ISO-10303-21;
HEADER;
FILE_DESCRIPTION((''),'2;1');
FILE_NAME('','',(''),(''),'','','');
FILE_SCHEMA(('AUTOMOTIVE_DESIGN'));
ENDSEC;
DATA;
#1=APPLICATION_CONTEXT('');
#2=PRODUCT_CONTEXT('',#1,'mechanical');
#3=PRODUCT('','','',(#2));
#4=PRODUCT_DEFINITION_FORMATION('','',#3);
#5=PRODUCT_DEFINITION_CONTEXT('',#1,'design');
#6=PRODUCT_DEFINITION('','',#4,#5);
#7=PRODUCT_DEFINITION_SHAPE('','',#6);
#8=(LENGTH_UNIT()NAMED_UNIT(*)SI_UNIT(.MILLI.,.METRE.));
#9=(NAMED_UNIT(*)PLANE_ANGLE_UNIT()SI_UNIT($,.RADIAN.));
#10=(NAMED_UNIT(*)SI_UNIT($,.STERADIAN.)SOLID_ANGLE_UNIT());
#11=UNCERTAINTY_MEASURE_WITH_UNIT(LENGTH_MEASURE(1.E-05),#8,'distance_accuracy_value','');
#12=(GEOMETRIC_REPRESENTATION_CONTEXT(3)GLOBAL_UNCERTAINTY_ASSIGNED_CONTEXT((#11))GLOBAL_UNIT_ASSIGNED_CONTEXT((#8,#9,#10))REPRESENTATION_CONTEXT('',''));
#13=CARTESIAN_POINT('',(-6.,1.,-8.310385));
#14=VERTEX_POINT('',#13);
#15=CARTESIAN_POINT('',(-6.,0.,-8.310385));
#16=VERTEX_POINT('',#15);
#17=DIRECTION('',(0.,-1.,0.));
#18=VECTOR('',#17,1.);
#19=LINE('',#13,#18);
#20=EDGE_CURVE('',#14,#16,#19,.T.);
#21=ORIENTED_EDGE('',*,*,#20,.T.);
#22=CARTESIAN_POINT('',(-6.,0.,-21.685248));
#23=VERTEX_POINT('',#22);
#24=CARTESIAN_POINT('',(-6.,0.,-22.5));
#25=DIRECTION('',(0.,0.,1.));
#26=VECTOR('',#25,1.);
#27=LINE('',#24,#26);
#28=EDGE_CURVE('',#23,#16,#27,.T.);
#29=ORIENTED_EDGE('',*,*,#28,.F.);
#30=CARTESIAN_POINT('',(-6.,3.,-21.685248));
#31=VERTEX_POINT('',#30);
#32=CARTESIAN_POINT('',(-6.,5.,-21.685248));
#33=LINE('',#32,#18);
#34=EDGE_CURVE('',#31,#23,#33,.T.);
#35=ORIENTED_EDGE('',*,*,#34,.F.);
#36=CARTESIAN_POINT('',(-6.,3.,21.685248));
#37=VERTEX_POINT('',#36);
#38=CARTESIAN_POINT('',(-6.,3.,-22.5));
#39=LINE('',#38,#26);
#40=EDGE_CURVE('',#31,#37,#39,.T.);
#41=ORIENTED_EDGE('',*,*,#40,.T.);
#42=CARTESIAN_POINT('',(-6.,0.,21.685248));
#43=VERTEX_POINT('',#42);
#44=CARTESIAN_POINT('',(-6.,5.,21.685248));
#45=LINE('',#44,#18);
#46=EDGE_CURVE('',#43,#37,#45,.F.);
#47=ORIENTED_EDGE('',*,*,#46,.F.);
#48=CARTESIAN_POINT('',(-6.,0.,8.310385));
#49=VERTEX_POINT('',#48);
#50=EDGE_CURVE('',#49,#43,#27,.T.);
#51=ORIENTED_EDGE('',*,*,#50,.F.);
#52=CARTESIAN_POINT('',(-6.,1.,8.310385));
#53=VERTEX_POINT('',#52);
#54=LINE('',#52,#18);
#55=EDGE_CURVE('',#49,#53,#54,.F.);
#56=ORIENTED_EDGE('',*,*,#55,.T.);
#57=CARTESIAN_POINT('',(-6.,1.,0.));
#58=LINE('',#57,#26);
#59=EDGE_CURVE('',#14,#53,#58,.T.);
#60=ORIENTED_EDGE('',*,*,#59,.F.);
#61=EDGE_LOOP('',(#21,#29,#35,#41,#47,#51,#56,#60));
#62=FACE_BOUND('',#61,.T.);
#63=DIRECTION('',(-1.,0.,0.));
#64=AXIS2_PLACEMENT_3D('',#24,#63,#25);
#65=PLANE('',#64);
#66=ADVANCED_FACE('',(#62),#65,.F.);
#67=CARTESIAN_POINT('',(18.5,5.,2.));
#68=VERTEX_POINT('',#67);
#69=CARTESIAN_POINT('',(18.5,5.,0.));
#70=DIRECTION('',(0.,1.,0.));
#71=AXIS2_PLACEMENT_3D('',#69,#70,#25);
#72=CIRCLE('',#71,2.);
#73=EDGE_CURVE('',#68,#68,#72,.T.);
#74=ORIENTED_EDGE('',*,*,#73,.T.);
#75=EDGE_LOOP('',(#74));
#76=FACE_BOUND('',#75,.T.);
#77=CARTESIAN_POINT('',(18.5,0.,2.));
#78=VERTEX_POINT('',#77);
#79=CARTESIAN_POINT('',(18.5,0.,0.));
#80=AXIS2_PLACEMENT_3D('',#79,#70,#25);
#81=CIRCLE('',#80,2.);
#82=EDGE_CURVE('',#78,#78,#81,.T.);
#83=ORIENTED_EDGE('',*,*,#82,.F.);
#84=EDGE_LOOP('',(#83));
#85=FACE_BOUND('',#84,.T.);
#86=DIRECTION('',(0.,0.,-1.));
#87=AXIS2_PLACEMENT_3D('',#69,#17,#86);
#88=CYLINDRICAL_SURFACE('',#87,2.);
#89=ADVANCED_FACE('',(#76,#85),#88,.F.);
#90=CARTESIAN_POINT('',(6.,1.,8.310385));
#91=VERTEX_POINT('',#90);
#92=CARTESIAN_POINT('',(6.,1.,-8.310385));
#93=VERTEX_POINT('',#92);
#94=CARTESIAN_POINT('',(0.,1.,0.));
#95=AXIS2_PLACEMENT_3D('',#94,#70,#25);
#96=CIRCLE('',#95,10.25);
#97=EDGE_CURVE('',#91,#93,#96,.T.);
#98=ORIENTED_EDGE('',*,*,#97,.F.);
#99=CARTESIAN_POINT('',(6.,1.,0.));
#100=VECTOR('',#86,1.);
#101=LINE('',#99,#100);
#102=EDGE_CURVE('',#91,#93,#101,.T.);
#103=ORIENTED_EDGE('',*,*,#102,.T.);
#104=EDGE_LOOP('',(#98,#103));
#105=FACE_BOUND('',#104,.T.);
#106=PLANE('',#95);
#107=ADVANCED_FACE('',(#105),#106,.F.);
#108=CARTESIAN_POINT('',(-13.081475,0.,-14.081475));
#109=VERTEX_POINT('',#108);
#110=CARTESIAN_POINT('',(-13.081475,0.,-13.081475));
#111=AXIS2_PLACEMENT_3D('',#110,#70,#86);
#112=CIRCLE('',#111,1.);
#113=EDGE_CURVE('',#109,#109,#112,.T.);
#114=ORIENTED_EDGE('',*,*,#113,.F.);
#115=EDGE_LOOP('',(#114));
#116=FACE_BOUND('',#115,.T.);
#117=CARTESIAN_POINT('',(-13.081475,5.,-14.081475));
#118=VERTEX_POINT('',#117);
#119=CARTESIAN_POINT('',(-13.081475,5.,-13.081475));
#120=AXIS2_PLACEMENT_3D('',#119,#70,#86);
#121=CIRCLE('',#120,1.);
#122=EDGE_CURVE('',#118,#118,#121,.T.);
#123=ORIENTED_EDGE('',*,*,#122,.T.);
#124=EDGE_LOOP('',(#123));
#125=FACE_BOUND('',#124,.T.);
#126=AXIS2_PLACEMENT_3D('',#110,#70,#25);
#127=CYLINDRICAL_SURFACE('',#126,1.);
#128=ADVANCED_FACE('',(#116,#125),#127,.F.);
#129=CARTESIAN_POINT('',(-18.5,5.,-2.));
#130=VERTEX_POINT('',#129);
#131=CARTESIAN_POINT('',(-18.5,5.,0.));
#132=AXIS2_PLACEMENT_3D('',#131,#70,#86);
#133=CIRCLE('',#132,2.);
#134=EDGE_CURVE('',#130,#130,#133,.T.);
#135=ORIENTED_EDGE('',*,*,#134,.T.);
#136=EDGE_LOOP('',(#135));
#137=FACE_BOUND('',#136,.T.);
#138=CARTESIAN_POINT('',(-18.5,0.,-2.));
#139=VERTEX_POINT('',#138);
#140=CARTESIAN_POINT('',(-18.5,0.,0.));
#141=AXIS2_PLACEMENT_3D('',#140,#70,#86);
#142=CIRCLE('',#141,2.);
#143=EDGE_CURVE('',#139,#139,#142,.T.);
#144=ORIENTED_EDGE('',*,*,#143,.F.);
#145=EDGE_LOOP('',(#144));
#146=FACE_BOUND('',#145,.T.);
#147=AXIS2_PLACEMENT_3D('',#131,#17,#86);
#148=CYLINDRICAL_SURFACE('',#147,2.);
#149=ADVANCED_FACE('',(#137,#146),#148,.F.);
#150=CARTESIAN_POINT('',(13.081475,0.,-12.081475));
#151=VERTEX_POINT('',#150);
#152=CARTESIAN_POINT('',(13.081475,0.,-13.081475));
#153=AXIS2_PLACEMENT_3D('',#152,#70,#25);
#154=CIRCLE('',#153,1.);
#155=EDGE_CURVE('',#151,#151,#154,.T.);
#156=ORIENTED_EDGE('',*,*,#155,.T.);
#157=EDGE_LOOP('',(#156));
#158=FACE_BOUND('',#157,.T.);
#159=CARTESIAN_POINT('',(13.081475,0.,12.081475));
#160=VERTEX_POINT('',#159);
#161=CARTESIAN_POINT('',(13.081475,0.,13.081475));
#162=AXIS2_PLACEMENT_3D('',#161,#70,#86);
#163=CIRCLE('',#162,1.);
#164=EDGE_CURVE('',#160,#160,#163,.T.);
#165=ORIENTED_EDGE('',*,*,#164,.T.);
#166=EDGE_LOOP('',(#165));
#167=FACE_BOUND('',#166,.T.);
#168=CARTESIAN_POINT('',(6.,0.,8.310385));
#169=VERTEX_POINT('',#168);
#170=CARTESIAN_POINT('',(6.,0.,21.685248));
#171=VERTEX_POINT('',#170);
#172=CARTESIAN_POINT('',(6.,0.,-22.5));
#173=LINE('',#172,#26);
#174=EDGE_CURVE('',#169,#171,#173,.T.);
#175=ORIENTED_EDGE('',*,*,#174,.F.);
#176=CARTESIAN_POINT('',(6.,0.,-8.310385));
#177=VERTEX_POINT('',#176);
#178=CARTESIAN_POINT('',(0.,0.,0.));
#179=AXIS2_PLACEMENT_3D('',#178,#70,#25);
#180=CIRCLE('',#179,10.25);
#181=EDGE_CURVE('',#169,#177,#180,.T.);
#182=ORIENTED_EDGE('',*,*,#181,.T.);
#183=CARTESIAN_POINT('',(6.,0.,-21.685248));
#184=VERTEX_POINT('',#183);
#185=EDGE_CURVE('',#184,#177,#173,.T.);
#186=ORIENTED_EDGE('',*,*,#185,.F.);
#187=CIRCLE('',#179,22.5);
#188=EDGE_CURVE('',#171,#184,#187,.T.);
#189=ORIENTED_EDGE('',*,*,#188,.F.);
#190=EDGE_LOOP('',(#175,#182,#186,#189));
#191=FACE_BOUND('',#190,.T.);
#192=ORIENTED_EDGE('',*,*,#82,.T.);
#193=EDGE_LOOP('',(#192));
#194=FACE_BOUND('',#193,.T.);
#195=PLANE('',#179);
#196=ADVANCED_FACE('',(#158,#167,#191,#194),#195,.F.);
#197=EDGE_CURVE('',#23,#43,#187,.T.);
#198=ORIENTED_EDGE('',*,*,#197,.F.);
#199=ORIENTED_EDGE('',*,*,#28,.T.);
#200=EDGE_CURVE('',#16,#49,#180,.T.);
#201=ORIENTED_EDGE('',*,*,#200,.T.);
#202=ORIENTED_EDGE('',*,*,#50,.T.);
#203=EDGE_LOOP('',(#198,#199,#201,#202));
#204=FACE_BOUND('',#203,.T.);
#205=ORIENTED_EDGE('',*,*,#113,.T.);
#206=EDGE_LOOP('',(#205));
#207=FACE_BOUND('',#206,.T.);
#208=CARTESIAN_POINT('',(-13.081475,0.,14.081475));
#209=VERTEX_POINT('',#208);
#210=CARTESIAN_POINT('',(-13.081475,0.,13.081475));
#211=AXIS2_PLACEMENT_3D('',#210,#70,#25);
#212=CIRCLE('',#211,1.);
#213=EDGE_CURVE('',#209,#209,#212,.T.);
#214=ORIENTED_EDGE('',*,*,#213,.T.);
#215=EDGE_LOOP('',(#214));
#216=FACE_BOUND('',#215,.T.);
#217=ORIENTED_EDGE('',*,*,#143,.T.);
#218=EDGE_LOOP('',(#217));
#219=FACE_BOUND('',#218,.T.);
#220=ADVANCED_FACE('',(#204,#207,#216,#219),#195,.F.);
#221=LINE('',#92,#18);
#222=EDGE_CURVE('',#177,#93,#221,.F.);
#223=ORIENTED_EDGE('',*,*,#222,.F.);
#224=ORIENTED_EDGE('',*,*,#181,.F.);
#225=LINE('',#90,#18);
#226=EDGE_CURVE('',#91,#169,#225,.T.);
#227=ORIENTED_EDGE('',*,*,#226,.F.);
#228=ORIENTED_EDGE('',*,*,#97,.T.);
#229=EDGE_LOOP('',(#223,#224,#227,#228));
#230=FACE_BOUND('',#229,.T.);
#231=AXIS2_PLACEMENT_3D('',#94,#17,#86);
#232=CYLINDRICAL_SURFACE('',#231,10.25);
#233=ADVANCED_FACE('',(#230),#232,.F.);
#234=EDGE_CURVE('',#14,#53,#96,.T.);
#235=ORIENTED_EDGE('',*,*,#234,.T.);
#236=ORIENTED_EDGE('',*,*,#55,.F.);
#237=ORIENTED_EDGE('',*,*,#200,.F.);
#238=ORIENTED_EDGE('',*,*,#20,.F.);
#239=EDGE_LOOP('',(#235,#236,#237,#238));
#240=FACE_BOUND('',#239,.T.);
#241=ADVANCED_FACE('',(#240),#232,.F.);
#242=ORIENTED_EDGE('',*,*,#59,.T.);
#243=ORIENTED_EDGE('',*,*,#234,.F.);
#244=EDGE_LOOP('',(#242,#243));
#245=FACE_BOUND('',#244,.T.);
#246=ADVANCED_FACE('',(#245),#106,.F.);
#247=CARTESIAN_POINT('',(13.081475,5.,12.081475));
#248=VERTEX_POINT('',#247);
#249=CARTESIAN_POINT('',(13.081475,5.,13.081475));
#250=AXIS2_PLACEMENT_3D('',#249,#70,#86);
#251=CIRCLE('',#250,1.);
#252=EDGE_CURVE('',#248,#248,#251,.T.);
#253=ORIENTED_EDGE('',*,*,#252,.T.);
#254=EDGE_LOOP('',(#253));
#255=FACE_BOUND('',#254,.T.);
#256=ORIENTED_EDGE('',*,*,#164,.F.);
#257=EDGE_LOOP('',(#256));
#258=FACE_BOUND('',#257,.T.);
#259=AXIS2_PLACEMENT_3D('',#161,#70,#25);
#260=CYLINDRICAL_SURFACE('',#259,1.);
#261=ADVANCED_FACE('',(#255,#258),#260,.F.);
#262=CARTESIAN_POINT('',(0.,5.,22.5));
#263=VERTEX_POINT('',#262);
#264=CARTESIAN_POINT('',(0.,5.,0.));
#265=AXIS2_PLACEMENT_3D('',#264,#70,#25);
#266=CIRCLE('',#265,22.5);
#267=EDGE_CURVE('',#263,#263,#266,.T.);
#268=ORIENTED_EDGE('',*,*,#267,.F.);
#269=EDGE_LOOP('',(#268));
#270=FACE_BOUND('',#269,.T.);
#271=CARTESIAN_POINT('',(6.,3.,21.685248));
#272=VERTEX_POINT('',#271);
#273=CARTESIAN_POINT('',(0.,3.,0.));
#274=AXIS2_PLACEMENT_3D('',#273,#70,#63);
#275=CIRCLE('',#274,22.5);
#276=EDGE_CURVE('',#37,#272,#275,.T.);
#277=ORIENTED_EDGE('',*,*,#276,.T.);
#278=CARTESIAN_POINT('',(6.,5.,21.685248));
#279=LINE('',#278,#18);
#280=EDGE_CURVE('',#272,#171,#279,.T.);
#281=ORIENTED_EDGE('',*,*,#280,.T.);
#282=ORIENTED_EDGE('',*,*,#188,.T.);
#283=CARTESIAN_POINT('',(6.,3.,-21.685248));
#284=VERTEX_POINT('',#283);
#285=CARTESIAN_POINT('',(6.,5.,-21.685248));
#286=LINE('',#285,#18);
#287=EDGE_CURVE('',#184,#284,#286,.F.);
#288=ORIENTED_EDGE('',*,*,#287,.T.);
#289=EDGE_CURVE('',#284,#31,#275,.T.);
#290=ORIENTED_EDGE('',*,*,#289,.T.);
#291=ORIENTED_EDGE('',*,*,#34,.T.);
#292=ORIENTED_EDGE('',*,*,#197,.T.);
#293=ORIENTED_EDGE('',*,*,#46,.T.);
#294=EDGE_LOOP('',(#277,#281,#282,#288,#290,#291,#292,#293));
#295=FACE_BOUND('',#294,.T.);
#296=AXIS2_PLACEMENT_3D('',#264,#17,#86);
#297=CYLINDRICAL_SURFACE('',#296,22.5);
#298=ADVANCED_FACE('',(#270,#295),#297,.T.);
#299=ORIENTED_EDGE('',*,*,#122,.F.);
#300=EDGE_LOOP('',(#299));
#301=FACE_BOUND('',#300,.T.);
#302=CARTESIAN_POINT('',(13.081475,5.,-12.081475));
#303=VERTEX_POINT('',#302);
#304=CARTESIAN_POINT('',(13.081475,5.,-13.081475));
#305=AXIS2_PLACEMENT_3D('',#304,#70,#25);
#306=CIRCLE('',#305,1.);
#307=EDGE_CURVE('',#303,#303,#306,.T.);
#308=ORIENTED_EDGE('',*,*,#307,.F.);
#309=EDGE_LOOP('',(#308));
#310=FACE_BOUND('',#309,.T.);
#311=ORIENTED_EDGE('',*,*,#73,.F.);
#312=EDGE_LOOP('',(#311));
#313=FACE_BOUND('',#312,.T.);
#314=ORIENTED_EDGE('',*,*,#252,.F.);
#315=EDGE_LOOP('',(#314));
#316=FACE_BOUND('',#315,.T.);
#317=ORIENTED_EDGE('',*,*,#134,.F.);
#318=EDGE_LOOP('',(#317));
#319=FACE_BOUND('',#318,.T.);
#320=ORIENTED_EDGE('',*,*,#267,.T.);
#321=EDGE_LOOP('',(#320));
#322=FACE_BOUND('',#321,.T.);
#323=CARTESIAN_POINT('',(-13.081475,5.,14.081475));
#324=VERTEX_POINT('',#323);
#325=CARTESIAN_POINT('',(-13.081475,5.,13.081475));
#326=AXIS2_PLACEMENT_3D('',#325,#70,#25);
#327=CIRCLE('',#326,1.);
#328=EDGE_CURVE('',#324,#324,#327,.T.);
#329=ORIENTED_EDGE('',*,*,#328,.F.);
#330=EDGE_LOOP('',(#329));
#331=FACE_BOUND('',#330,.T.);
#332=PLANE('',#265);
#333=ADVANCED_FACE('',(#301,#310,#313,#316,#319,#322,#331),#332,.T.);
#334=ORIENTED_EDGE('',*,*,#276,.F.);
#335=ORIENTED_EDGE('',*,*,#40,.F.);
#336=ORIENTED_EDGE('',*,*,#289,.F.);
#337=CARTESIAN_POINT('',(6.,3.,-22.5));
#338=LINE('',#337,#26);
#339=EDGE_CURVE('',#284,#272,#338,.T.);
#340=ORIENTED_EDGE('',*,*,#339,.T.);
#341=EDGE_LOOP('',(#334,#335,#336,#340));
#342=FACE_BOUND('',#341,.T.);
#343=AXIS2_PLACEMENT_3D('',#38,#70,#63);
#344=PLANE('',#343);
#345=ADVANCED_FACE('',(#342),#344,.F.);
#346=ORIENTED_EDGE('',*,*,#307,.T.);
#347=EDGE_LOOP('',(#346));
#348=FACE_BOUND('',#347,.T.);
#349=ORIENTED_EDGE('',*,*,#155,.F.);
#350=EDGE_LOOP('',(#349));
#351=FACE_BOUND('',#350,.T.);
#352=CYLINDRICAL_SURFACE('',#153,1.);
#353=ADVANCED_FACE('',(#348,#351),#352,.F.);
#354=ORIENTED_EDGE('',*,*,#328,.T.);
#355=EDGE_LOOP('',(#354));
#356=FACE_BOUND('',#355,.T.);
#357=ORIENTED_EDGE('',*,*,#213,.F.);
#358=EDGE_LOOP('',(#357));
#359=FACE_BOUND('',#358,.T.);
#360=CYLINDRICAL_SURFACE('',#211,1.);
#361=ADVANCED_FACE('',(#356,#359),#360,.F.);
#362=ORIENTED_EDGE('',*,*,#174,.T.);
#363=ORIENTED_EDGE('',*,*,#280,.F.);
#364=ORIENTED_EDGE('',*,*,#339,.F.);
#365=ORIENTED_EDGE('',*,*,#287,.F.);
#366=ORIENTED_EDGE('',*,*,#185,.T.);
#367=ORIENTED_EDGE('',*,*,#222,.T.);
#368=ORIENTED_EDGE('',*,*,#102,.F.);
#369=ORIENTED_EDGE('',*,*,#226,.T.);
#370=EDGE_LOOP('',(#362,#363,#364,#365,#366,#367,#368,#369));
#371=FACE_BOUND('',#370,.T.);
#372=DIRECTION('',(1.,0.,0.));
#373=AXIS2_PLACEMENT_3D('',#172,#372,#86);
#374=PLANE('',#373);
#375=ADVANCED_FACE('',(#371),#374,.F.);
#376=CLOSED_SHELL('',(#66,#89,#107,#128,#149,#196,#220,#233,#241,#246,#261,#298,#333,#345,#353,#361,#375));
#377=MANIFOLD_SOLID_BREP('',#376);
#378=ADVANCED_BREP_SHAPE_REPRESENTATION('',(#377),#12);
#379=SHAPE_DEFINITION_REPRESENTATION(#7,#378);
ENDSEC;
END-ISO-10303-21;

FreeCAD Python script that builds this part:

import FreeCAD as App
import Part
import Sketcher
Q = App.Units.Quantity


def add_polygon(sketch, points):
    """Adds a closed chain of lines whose ends are joined by coincident constraints."""
    first, n = sketch.GeometryCount, len(points)
    for a, b in zip(points, points[1:] + points[:1]):
        sketch.addGeometry(Part.LineSegment(App.Vector(*a, 0), App.Vector(*b, 0)), False)
    for i in range(n):
        sketch.addConstraint(Sketcher.Constraint("Coincident", first + i, 2, first + (i + 1) % n, 1))

doc = App.newDocument("Part")
body = doc.addObject("PartDesign::Body", "Body")

sketch1 = body.newObject("Sketcher::SketchObject", "Sketch")
sketch1.AttachmentSupport = (doc.getObject("XZ_Plane"), [""])
sketch1.MapMode = "FlatFace"
sketch1.addGeometry(Part.Circle(App.Vector(0, 0, 0), App.Vector(0, 0, 1), 22.5), False)
sketch1.addGeometry(Part.Circle(App.Vector(-18.5, 0, 0), App.Vector(0, 0, 1), 2), False)
sketch1.addGeometry(Part.Circle(App.Vector(18.5, 0, 0), App.Vector(0, 0, 1), 2), False)
sketch1.addConstraint(Sketcher.Constraint("Coincident", 0, 3, -1, 1))
sketch1.addConstraint(Sketcher.Constraint("Equal", 1, 2))
sketch1.addConstraint(Sketcher.Constraint("Symmetric", 1, 3, 2, 3, -1, 1))
sketch1.addConstraint(Sketcher.Constraint("PointOnObject", 1, 3, -1))
sketch1.addConstraint(Sketcher.Constraint("Diameter", 0, Q("45 mm")))
sketch1.addConstraint(Sketcher.Constraint("Diameter", 1, Q("4 mm")))
sketch1.addConstraint(Sketcher.Constraint("DistanceX", 1, 3, 2, 3, Q("37 mm")))
pad1 = body.newObject("PartDesign::Pad", "Pad")
pad1.Profile = sketch1
pad1.Length = 5
pad1.Reversed = True

sketch2 = body.newObject("Sketcher::SketchObject", "Sketch001")
sketch2.AttachmentSupport = (doc.getObject("XZ_Plane"), [""])
sketch2.MapMode = "FlatFace"
sketch2.addGeometry(Part.Circle(App.Vector(0, 0, 0), App.Vector(0, 0, 1), 10), False)
sketch2.addConstraint(Sketcher.Constraint("Coincident", 0, 3, -1, 1))
sketch2.addConstraint(Sketcher.Constraint("Diameter", 0, Q("20.5 mm")))
pocket1 = body.newObject("PartDesign::Pocket", "Pocket")
pocket1.Profile = sketch2
pocket1.Length = 1

sketch3 = body.newObject("Sketcher::SketchObject", "Sketch002")
sketch3.AttachmentSupport = (doc.getObject("XY_Plane"), [""])
sketch3.MapMode = "FlatFace"
add_polygon(sketch3, [(-6, 3), (-6, 0), (6, 0), (6, 3)])
sketch3.addConstraint(Sketcher.Constraint("Vertical", 0))
sketch3.addConstraint(Sketcher.Constraint("Horizontal", 1))
sketch3.addConstraint(Sketcher.Constraint("Vertical", 2))
sketch3.addConstraint(Sketcher.Constraint("Horizontal", 3))
sketch3.addConstraint(Sketcher.Constraint("Symmetric", 0, 2, 1, 2, -1, 1))
sketch3.addConstraint(Sketcher.Constraint("DistanceX", 1, 1, 1, 2, Q("12 mm")))
sketch3.addConstraint(Sketcher.Constraint("DistanceY", 0, 2, 0, 1, Q("3 mm")))
pocket2 = body.newObject("PartDesign::Pocket", "Pocket001")
pocket2.Profile = sketch3
pocket2.Type = "ThroughAll"
pocket2.Midplane = True

sketch4 = body.newObject("Sketcher::SketchObject", "Sketch003")
sketch4.AttachmentSupport = (doc.getObject("XZ_Plane"), [""])
sketch4.MapMode = "FlatFace"
sketch4.AttachmentOffset = App.Placement(App.Vector(0, 0, -5), App.Rotation())
sketch4.addGeometry(Part.Circle(App.Vector(13.1, -13.1, 0), App.Vector(0, 0, 1), 1), False)
sketch4.addGeometry(Part.Circle(App.Vector(13.1, 13.1, 0), App.Vector(0, 0, 1), 1), False)
sketch4.addGeometry(Part.Circle(App.Vector(-13.1, -13.1, 0), App.Vector(0, 0, 1), 1), False)
sketch4.addGeometry(Part.Circle(App.Vector(-13.1, 13.1, 0), App.Vector(0, 0, 1), 1), False)
sketch4.addConstraint(Sketcher.Constraint("Equal", 0, 1))
sketch4.addConstraint(Sketcher.Constraint("Equal", 1, 2))
sketch4.addConstraint(Sketcher.Constraint("Equal", 2, 3))
sketch4.addConstraint(Sketcher.Constraint("Symmetric", 1, 3, 2, 3, -1, 1))
sketch4.addConstraint(Sketcher.Constraint("Symmetric", 0, 3, 3, 3, -1, 1))
sketch4.addConstraint(Sketcher.Constraint("Symmetric", 0, 3, 2, 3, -2))
sketch4.addConstraint(Sketcher.Constraint("Diameter", 0, Q("2 mm")))
sketch4.addConstraint(Sketcher.Constraint("DistanceY", 0, 3, 1, 3, Q("26.162951 mm")))
sketch4.addConstraint(Sketcher.Constraint("DistanceX", 2, 3, 0, 3, Q("26.162951 mm")))
pocket3 = body.newObject("PartDesign::Pocket", "Pocket002")
pocket3.Profile = sketch4
pocket3.Type = "ThroughAll"
pocket3.Reversed = True

doc.recompute()
